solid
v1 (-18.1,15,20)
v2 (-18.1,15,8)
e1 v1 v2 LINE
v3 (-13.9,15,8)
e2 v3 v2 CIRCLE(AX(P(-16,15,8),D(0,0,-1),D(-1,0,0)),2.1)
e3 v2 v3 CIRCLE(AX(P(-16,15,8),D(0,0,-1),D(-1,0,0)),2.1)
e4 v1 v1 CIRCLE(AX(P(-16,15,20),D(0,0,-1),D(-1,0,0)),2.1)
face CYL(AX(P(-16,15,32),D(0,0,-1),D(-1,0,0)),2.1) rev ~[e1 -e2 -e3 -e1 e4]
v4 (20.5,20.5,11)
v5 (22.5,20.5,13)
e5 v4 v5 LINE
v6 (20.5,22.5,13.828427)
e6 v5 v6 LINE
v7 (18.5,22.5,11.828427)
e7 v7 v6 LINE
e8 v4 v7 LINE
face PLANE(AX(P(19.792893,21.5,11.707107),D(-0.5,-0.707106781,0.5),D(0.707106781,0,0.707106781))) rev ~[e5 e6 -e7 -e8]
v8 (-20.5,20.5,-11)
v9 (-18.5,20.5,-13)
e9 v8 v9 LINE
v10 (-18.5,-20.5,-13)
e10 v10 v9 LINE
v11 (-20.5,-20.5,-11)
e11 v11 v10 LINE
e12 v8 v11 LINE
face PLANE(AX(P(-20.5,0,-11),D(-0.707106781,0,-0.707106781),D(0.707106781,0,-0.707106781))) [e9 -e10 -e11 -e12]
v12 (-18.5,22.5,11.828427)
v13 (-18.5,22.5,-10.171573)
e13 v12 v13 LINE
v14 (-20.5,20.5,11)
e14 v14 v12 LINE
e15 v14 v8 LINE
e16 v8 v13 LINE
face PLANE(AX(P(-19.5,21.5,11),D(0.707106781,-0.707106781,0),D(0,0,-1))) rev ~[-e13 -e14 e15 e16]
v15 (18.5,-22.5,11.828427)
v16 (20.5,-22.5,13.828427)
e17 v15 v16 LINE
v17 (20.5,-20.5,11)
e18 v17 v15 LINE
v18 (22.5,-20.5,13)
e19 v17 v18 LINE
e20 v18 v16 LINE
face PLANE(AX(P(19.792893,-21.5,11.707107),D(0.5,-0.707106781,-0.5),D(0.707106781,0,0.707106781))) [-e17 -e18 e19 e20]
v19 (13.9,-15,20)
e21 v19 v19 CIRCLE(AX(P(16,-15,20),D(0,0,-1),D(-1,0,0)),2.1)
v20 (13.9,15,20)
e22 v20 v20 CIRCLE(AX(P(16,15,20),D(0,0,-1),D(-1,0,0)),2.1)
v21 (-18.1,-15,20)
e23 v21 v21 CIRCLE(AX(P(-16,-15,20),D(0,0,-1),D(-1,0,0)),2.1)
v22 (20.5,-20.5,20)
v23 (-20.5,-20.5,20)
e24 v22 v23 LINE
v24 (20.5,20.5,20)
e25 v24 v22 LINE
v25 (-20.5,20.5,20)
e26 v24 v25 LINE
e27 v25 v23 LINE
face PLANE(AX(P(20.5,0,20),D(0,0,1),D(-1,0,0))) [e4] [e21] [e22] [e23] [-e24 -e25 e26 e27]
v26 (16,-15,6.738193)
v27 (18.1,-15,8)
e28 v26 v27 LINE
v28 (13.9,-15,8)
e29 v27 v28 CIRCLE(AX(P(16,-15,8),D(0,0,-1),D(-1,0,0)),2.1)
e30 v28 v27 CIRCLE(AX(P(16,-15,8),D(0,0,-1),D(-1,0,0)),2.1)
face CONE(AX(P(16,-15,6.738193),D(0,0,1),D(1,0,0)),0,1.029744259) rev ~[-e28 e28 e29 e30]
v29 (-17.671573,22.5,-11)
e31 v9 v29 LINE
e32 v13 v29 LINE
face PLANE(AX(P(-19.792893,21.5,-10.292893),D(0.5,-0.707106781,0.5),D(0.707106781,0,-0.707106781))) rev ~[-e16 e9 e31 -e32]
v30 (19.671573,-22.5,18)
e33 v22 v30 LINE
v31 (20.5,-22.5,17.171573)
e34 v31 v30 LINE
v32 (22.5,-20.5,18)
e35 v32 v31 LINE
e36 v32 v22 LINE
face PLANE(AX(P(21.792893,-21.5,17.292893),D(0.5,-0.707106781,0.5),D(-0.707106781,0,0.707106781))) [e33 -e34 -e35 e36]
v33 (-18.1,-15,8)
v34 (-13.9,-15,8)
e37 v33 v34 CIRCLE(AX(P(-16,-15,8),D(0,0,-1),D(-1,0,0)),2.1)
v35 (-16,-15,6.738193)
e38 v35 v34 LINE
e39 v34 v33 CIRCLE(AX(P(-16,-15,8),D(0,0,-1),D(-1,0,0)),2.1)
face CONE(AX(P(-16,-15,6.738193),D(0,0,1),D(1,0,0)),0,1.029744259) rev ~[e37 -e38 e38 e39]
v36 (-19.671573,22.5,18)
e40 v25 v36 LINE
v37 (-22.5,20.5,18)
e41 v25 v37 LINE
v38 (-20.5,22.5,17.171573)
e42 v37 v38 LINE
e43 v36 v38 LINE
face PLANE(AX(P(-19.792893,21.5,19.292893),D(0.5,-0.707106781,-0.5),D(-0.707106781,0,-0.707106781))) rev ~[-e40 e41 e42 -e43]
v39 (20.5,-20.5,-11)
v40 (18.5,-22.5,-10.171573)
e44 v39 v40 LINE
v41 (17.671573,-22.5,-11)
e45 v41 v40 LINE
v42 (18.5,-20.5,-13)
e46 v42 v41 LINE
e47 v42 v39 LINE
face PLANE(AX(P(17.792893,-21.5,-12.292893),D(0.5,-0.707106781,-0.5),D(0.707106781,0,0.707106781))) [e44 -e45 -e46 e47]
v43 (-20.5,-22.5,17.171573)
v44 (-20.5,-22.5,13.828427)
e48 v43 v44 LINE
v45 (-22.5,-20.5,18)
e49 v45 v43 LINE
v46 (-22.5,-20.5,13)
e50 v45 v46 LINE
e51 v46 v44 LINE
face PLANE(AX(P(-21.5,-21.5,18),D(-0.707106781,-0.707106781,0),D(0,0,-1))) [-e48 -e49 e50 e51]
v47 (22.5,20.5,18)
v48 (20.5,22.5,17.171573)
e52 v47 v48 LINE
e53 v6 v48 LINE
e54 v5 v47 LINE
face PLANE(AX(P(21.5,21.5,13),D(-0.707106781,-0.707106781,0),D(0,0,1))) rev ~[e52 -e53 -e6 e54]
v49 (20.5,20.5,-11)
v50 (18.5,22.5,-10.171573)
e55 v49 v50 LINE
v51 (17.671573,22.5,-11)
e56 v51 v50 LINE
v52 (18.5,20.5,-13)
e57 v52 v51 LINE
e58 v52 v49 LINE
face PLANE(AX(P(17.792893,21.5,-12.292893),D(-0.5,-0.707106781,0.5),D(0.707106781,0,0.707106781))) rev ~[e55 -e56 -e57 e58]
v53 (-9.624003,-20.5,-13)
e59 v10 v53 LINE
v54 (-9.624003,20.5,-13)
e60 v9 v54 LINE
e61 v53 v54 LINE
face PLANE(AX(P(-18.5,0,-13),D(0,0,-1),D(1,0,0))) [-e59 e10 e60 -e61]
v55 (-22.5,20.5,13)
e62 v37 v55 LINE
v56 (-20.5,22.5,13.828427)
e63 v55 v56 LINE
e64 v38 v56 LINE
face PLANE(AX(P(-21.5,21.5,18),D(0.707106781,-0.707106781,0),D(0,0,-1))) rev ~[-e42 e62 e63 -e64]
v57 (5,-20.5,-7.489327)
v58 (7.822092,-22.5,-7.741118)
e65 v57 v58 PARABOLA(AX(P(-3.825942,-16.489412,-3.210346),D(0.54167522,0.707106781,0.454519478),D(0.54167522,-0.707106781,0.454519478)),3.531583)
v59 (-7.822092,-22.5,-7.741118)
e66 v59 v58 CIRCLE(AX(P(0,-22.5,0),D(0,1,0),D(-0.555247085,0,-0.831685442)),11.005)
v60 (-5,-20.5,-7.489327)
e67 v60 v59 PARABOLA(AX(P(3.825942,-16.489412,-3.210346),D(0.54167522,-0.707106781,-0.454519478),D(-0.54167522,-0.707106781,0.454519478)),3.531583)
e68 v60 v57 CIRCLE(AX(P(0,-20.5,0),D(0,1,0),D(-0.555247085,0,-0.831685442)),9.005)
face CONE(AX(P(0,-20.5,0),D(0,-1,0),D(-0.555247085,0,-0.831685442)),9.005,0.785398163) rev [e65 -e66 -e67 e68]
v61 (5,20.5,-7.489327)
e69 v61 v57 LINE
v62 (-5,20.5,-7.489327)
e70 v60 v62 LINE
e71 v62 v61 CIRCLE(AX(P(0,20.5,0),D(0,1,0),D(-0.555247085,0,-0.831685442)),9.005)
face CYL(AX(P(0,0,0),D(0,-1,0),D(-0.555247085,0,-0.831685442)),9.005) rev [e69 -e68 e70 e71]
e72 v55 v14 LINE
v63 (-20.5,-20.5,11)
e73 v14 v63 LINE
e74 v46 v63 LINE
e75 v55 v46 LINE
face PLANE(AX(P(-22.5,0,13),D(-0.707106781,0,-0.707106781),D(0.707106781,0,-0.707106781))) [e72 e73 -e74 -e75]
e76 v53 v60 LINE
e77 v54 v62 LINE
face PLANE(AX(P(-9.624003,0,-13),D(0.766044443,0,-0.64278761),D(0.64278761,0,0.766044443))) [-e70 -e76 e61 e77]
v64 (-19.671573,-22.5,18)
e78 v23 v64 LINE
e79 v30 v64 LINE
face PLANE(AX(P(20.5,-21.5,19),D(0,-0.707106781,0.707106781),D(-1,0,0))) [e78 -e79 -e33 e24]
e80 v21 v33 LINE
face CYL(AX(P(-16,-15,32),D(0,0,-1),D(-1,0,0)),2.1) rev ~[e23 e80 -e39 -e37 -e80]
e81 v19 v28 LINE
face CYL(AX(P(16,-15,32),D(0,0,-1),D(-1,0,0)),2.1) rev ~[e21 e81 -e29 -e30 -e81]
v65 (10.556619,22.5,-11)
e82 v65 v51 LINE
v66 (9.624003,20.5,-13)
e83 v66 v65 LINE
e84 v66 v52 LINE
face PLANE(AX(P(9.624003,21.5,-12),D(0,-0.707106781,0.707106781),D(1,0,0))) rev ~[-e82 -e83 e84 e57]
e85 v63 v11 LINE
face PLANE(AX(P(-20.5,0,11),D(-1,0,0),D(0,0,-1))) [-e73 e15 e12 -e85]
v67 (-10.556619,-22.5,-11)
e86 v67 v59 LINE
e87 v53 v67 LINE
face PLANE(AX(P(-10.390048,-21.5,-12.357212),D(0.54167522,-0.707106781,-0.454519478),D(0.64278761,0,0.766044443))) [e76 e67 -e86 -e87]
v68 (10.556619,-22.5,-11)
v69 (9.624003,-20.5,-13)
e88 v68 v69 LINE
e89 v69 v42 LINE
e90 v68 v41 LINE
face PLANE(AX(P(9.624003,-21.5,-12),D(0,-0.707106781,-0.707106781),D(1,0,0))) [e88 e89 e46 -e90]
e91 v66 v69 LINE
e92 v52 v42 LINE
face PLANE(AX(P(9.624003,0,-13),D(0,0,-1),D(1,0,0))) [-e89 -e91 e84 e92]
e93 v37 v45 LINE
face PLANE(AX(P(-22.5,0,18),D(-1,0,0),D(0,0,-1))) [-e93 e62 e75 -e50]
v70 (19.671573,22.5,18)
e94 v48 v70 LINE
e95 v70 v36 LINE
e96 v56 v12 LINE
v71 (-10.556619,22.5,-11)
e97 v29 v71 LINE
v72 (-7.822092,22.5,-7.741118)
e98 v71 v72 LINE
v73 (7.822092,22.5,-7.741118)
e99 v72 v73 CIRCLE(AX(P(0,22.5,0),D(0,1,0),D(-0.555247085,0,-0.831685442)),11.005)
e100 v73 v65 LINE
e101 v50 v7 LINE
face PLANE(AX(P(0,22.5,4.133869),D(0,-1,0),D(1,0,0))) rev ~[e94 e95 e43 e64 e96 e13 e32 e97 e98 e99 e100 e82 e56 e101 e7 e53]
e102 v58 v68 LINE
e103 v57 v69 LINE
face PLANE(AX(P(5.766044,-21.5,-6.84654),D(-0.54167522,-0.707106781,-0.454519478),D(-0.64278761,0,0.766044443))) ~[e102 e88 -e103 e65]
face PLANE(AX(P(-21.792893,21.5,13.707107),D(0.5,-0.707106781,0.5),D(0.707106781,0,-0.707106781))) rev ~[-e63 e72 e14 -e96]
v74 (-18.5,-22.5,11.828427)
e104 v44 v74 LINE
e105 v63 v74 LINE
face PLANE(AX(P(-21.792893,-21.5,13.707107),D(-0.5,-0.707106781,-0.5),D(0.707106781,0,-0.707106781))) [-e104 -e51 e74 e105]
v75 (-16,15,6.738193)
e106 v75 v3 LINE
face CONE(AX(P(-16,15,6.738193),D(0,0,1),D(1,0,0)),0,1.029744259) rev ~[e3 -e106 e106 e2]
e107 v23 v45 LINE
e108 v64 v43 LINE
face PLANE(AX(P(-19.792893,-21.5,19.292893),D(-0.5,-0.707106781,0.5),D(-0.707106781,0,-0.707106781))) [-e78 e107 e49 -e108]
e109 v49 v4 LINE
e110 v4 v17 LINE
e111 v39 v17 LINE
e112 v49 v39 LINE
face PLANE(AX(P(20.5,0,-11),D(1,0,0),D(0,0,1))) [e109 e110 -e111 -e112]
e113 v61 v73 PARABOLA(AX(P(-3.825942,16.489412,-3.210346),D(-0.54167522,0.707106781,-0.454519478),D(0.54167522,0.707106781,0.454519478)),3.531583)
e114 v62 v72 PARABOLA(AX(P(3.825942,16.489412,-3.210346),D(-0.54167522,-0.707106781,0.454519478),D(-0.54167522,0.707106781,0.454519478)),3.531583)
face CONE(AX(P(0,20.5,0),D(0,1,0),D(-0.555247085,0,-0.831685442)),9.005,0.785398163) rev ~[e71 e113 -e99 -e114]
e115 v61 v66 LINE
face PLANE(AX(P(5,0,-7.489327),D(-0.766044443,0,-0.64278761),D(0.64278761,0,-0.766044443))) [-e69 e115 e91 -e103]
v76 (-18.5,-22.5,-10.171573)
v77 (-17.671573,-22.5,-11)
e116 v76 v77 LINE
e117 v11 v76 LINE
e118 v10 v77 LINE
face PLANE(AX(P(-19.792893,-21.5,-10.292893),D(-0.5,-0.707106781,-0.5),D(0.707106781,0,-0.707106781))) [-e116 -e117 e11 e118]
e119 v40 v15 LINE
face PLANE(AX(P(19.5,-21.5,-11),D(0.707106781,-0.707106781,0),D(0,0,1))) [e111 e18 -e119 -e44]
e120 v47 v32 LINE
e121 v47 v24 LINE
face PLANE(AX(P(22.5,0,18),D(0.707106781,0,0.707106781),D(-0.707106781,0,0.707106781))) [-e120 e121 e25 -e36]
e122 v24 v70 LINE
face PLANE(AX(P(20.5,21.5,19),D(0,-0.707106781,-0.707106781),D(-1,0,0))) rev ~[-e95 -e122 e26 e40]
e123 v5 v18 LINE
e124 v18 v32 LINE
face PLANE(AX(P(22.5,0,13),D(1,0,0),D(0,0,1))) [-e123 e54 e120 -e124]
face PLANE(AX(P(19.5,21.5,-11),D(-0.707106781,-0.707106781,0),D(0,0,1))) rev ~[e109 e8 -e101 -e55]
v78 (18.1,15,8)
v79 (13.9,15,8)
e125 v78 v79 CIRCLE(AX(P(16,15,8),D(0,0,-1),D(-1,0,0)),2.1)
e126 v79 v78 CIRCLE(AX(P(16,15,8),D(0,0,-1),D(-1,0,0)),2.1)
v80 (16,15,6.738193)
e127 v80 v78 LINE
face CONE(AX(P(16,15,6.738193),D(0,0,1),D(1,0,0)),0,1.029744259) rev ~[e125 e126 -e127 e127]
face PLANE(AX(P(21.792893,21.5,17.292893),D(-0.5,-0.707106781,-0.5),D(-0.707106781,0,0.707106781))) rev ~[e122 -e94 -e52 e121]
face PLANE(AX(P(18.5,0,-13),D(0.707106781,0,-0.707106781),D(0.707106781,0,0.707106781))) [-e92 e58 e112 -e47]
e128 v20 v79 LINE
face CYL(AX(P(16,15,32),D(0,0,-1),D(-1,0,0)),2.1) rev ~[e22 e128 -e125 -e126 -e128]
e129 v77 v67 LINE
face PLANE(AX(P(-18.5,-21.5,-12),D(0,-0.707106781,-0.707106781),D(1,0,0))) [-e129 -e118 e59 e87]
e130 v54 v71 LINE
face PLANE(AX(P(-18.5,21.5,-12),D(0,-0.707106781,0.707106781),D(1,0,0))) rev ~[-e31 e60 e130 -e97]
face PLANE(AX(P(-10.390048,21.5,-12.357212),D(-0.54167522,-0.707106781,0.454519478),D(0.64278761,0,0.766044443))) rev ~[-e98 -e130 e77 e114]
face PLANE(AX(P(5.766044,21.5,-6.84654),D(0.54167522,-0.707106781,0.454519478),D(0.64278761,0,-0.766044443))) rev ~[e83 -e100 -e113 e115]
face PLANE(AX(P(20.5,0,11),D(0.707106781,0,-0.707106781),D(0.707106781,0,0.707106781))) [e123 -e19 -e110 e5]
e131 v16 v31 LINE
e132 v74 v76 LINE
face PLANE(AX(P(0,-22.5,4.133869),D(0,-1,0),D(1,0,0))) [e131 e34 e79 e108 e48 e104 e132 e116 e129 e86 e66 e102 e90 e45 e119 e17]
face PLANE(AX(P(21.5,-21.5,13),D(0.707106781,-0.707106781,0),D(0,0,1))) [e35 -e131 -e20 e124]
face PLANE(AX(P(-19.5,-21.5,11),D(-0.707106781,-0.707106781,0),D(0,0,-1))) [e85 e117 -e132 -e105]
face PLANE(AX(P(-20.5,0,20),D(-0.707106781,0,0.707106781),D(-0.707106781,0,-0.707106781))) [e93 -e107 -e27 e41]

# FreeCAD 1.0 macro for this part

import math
import FreeCAD as App
import Part
import Sketcher
from FreeCAD import Vector
Q = App.Units.Quantity


def edges_at(feature, points):
    """Names of the edges that pass closest to the given points."""
    edges = feature.Shape.Edges
    near = lambda p: min(range(len(edges)), key=lambda i: edges[i].distToShape(Part.Vertex(*p))[0])
    return sorted({f"Edge{near(p) + 1}" for p in points})

doc = App.newDocument("Part")
body = doc.addObject("PartDesign::Body", "Body")

sketch1 = body.newObject("Sketcher::SketchObject", "Sketch")
sketch1.AttachmentSupport = (doc.getObject("XZ_Plane"), [""])
sketch1.MapMode = "FlatFace"
sketch1.addGeometry([
    Part.ArcOfCircle(Part.Circle(Vector(0, 0, 0), Vector(0, 0, 1), 9), math.radians(-56), math.radians(236)),
    Part.LineSegment(Vector(5, -7.5, 0), Vector(9.6, -13, 0)),
    Part.LineSegment(Vector(9.6, -13, 0), Vector(18.5, -13, 0)),
    Part.LineSegment(Vector(18.5, -13, 0), Vector(20.5, -11, 0)),
    Part.LineSegment(Vector(20.5, -11, 0), Vector(20.5, 11, 0)),
    Part.LineSegment(Vector(20.5, 11, 0), Vector(22.5, 13, 0)),
    Part.LineSegment(Vector(22.5, 13, 0), Vector(22.5, 18, 0)),
    Part.LineSegment(Vector(22.5, 18, 0), Vector(20.5, 20, 0)),
    Part.LineSegment(Vector(20.5, 20, 0), Vector(-20.5, 20, 0)),
    Part.LineSegment(Vector(-20.5, 20, 0), Vector(-22.5, 18, 0)),
    Part.LineSegment(Vector(-22.5, 18, 0), Vector(-22.5, 13, 0)),
    Part.LineSegment(Vector(-22.5, 13, 0), Vector(-20.5, 11, 0)),
    Part.LineSegment(Vector(-20.5, 11, 0), Vector(-20.5, -11, 0)),
    Part.LineSegment(Vector(-20.5, -11, 0), Vector(-18.5, -13, 0)),
    Part.LineSegment(Vector(-18.5, -13, 0), Vector(-9.6, -13, 0)),
    Part.LineSegment(Vector(-9.6, -13, 0), Vector(-5, -7.5, 0)),
], False)
sketch1.addConstraint([
    Sketcher.Constraint("Coincident", 0, 1, 1, 1),
    Sketcher.Constraint("Coincident", 1, 2, 2, 1),
    Sketcher.Constraint("Coincident", 2, 2, 3, 1),
    Sketcher.Constraint("Coincident", 3, 2, 4, 1),
    Sketcher.Constraint("Coincident", 4, 2, 5, 1),
    Sketcher.Constraint("Coincident", 5, 2, 6, 1),
    Sketcher.Constraint("Coincident", 6, 2, 7, 1),
    Sketcher.Constraint("Coincident", 7, 2, 8, 1),
    Sketcher.Constraint("Coincident", 8, 2, 9, 1),
    Sketcher.Constraint("Coincident", 9, 2, 10, 1),
    Sketcher.Constraint("Coincident", 10, 2, 11, 1),
    Sketcher.Constraint("Coincident", 11, 2, 12, 1),
    Sketcher.Constraint("Coincident", 12, 2, 13, 1),
    Sketcher.Constraint("Coincident", 13, 2, 14, 1),
    Sketcher.Constraint("Coincident", 14, 2, 15, 1),
    Sketcher.Constraint("Coincident", 15, 2, 0, 2),
    Sketcher.Constraint("Horizontal", 2),
    Sketcher.Constraint("Vertical", 4),
    Sketcher.Constraint("Vertical", 6),
    Sketcher.Constraint("Horizontal", 8),
    Sketcher.Constraint("Vertical", 10),
    Sketcher.Constraint("Vertical", 12),
    Sketcher.Constraint("Horizontal", 14),
    Sketcher.Constraint("Coincident", 0, 3, -1, 1),
    Sketcher.Constraint("Symmetric", 3, 2, 11, 2, -1, 1),
    Sketcher.Constraint("Symmetric", 6, 2, 9, 2, -2),
    Sketcher.Constraint("Symmetric", 2, 2, 13, 2, -2),
    Sketcher.Constraint("Parallel", 3, 5),
    Sketcher.Constraint("Perpendicular", 5, 7),
    Sketcher.Constraint("Perpendicular", 7, 9),
    Sketcher.Constraint("Perpendicular", 9, 11),
    Sketcher.Constraint("Parallel", 11, 13),
    Sketcher.Constraint("Horizontal", 5, 2, 10, 2),
    Sketcher.Constraint("Horizontal", 4, 2, 11, 2),
    Sketcher.Constraint("Horizontal", 0, 1, 15, 2),
    Sketcher.Constraint("Vertical", 4, 2, 7, 2),
    Sketcher.Constraint("Equal", 2, 14),
    Sketcher.Constraint("Equal", 3, 5),
    Sketcher.Constraint("DistanceX", 8, 2, 8, 1, 41.0),
    Sketcher.Constraint("DistanceY", 4, 1, 4, 2, 22.0),
    Sketcher.Constraint("DistanceY", 6, 1, 6, 2, 5.0),
    Sketcher.Constraint("Angle", 1, Q("-50 deg")),
    Sketcher.Constraint("DistanceX", -1, 1, 0, 1, 5.0),
    Sketcher.Constraint("DistanceY", 1, 2, -1, 1, 13.0),
    Sketcher.Constraint("Radius", 0, 9.005),
])
pad1 = body.newObject("PartDesign::Pad", "Pad")
pad1.Profile = sketch1
pad1.Length = 45
pad1.Midplane = True
doc.recompute()

chamfer = body.newObject("PartDesign::Chamfer", "Chamfer")
chamfer.Base = (pad1, edges_at(pad1, [
    (0, -22.5, 9.005),
    (7.312, -22.5, -10.245),
    (14.062, -22.5, -13),
    (19.5, -22.5, -12),
    (20.5, -22.5, 0),
    (21.5, -22.5, 12),
    (22.5, -22.5, 15.5),
    (21.5, -22.5, 19),
    (0, -22.5, 20),
    (-21.5, -22.5, 19),
    (-22.5, -22.5, 15.5),
    (-21.5, -22.5, 12),
    (-20.5, -22.5, 0),
    (-19.5, -22.5, -12),
    (-14.062, -22.5, -13),
    (-7.312, -22.5, -10.245),
    (0, 22.5, 9.005),
    (7.312, 22.5, -10.245),
    (14.062, 22.5, -13),
    (19.5, 22.5, -12),
    (20.5, 22.5, 0),
    (21.5, 22.5, 12),
    (22.5, 22.5, 15.5),
    (21.5, 22.5, 19),
    (0, 22.5, 20),
    (-21.5, 22.5, 19),
    (-22.5, 22.5, 15.5),
    (-21.5, 22.5, 12),
    (-20.5, 22.5, 0),
    (-19.5, 22.5, -12),
    (-14.062, 22.5, -13),
    (-7.312, 22.5, -10.245),
]))
chamfer.Size = 2

sketch2 = body.newObject("Sketcher::SketchObject", "Sketch001")
sketch2.AttachmentSupport = (doc.getObject("XY_Plane"), [""])
sketch2.MapMode = "FlatFace"
sketch2.AttachmentOffset = App.Placement(Vector(0, 0, 20), App.Rotation())
sketch2.addGeometry([
    Part.Circle(Vector(-16, 15, 0), Vector(0, 0, 1), 2.1),
    Part.Circle(Vector(16, 15, 0), Vector(0, 0, 1), 2.1),
    Part.Circle(Vector(16, -15, 0), Vector(0, 0, 1), 2.1),
    Part.Circle(Vector(-16, -15, 0), Vector(0, 0, 1), 2.1),
], False)
sketch2.addConstraint([
    Sketcher.Constraint("Equal", 0, 1),
    Sketcher.Constraint("Equal", 1, 2),
    Sketcher.Constraint("Equal", 2, 3),
    Sketcher.Constraint("Symmetric", 0, 3, 2, 3, -1, 1),
    Sketcher.Constraint("Symmetric", 1, 3, 3, 3, -1, 1),
    Sketcher.Constraint("Symmetric", 0, 3, 1, 3, -2),
    Sketcher.Constraint("Diameter", 0, 4.2),
    Sketcher.Constraint("DistanceX", 0, 3, -1, 1, 16.0),
    Sketcher.Constraint("DistanceY", -1, 1, 0, 3, 15.0),
])
doc.recompute()
hole = body.newObject("PartDesign::Hole", "Hole")
hole.Profile = sketch2
hole.ThreadType = "None"
hole.Diameter = 4.2
hole.DepthType = "Dimension"
hole.Depth = 12
hole.DrillPoint = "Angled"
hole.DrillPointAngle = 118

doc.recompute()
